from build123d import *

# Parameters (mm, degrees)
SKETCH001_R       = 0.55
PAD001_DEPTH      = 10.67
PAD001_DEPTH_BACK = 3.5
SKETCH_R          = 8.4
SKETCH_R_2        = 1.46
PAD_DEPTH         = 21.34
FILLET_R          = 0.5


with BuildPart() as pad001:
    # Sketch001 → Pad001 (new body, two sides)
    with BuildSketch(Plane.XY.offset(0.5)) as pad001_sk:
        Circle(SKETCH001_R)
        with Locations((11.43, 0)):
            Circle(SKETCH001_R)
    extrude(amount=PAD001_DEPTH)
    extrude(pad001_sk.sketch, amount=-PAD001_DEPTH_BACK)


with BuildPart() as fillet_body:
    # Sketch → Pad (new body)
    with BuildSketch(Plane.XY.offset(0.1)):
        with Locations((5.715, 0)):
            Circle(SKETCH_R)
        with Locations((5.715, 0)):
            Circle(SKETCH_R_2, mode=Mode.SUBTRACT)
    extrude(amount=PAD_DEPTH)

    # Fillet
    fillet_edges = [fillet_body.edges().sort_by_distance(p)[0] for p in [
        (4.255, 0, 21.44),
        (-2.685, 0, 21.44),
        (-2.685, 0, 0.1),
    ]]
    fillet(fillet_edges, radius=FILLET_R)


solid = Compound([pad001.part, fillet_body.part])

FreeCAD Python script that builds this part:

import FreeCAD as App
import Part
import Sketcher

V = App.Vector
Q = App.Units.Quantity


def edges_at(feature, points):
    """Names of the edges that pass closest to the given points."""
    edges = feature.Shape.Edges
    near = lambda p: min(range(len(edges)), key=lambda i: edges[i].distToShape(Part.Vertex(*p))[0])
    return sorted({f"Edge{near(p) + 1}" for p in points})

doc = App.newDocument("Part")
params = doc.addObject("Spreadsheet::Sheet", "Params")
for row, (alias, value) in enumerate([
    ("sketch1_diameter", "1.1 mm"),
    ("pad1_length", "10.67 mm"),
    ("pad1_length2", "3.5 mm"),
    ("sketch2_diameter", "16.8 mm"),
    ("sketch2_diameter2", "2.92 mm"),
    ("pad2_length", "21.34 mm"),
    ("fillet_radius", "0.5 mm"),
], start=1):
    params.set(f"A{row}", alias)
    params.set(f"B{row}", "=" + value)
    params.setAlias(f"B{row}", alias)

body = doc.addObject("PartDesign::Body", "Body")
body.AllowCompound = True

# Sketch on XY plane
sketch1 = doc.addObject("Sketcher::SketchObject", "Sketch")
body.addObject(sketch1)
sketch1.AttachmentSupport = (doc.XY_Plane, [""])
sketch1.MapMode = "FlatFace"
sketch1.AttachmentOffset = App.Placement(V(0, 0, 0.5), App.Rotation())
sketch1.addGeometry([
    Part.Circle(V(0, 0, 0), V(0, 0, 1), 0.55),
    Part.Circle(V(11.43, 0, 0), V(0, 0, 1), 0.55),
], False)
sketch1.addConstraint([
    Sketcher.Constraint("Coincident", 0, 3, -1, 1),
    Sketcher.Constraint("Equal", 0, 1),
    Sketcher.Constraint("PointOnObject", 1, 3, -1),
    Sketcher.Constraint("Diameter", 0, Q("1.1 mm")),
    Sketcher.Constraint("DistanceX", -1, 1, 1, 3, Q("11.43 mm")),
])
sketch1.setExpression("Constraints[3]", "Params.sketch1_diameter")
pad1 = doc.addObject("PartDesign::Pad", "Pad")
body.addObject(pad1)
pad1.Profile = sketch1
pad1.Type = "TwoLengths"
pad1.setExpression("Length", "Params.pad1_length")
pad1.setExpression("Length2", "Params.pad1_length2")
body2 = doc.addObject("PartDesign::Body", "Body001")

# Sketch on XY plane
sketch2 = doc.addObject("Sketcher::SketchObject", "Sketch001")
body2.addObject(sketch2)
sketch2.AttachmentSupport = (doc.getObject("XY_Plane001"), [""])
sketch2.MapMode = "FlatFace"
sketch2.AttachmentOffset = App.Placement(V(0, 0, 0.1), App.Rotation())
sketch2.addGeometry([
    Part.Circle(V(5.715, 0, 0), V(0, 0, 1), 8.4),
    Part.Circle(V(5.715, 0, 0), V(0, 0, 1), 1.46),
], False)
sketch2.addConstraint([
    Sketcher.Constraint("Coincident", 1, 3, 0, 3),
    Sketcher.Constraint("PointOnObject", 0, 3, -1),
    Sketcher.Constraint("Diameter", 0, Q("16.8 mm")),
    Sketcher.Constraint("Diameter", 1, Q("2.92 mm")),
    Sketcher.Constraint("DistanceX", -1, 1, 0, 3, Q("5.715 mm")),
])
sketch2.setExpression("Constraints[2]", "Params.sketch2_diameter")
sketch2.setExpression("Constraints[3]", "Params.sketch2_diameter2")
pad2 = doc.addObject("PartDesign::Pad", "Pad001")
body2.addObject(pad2)
pad2.Profile = sketch2
pad2.setExpression("Length", "Params.pad2_length")
doc.recompute()

fillet = doc.addObject("PartDesign::Fillet", "Fillet")
body2.addObject(fillet)
fillet.Base = (pad2, edges_at(pad2, [(4.255, 0, 21.44), (-2.685, 0, 21.44), (-2.685, 0, 0.1)]))
fillet.setExpression("Radius", "Params.fillet_radius")

doc.recompute()
